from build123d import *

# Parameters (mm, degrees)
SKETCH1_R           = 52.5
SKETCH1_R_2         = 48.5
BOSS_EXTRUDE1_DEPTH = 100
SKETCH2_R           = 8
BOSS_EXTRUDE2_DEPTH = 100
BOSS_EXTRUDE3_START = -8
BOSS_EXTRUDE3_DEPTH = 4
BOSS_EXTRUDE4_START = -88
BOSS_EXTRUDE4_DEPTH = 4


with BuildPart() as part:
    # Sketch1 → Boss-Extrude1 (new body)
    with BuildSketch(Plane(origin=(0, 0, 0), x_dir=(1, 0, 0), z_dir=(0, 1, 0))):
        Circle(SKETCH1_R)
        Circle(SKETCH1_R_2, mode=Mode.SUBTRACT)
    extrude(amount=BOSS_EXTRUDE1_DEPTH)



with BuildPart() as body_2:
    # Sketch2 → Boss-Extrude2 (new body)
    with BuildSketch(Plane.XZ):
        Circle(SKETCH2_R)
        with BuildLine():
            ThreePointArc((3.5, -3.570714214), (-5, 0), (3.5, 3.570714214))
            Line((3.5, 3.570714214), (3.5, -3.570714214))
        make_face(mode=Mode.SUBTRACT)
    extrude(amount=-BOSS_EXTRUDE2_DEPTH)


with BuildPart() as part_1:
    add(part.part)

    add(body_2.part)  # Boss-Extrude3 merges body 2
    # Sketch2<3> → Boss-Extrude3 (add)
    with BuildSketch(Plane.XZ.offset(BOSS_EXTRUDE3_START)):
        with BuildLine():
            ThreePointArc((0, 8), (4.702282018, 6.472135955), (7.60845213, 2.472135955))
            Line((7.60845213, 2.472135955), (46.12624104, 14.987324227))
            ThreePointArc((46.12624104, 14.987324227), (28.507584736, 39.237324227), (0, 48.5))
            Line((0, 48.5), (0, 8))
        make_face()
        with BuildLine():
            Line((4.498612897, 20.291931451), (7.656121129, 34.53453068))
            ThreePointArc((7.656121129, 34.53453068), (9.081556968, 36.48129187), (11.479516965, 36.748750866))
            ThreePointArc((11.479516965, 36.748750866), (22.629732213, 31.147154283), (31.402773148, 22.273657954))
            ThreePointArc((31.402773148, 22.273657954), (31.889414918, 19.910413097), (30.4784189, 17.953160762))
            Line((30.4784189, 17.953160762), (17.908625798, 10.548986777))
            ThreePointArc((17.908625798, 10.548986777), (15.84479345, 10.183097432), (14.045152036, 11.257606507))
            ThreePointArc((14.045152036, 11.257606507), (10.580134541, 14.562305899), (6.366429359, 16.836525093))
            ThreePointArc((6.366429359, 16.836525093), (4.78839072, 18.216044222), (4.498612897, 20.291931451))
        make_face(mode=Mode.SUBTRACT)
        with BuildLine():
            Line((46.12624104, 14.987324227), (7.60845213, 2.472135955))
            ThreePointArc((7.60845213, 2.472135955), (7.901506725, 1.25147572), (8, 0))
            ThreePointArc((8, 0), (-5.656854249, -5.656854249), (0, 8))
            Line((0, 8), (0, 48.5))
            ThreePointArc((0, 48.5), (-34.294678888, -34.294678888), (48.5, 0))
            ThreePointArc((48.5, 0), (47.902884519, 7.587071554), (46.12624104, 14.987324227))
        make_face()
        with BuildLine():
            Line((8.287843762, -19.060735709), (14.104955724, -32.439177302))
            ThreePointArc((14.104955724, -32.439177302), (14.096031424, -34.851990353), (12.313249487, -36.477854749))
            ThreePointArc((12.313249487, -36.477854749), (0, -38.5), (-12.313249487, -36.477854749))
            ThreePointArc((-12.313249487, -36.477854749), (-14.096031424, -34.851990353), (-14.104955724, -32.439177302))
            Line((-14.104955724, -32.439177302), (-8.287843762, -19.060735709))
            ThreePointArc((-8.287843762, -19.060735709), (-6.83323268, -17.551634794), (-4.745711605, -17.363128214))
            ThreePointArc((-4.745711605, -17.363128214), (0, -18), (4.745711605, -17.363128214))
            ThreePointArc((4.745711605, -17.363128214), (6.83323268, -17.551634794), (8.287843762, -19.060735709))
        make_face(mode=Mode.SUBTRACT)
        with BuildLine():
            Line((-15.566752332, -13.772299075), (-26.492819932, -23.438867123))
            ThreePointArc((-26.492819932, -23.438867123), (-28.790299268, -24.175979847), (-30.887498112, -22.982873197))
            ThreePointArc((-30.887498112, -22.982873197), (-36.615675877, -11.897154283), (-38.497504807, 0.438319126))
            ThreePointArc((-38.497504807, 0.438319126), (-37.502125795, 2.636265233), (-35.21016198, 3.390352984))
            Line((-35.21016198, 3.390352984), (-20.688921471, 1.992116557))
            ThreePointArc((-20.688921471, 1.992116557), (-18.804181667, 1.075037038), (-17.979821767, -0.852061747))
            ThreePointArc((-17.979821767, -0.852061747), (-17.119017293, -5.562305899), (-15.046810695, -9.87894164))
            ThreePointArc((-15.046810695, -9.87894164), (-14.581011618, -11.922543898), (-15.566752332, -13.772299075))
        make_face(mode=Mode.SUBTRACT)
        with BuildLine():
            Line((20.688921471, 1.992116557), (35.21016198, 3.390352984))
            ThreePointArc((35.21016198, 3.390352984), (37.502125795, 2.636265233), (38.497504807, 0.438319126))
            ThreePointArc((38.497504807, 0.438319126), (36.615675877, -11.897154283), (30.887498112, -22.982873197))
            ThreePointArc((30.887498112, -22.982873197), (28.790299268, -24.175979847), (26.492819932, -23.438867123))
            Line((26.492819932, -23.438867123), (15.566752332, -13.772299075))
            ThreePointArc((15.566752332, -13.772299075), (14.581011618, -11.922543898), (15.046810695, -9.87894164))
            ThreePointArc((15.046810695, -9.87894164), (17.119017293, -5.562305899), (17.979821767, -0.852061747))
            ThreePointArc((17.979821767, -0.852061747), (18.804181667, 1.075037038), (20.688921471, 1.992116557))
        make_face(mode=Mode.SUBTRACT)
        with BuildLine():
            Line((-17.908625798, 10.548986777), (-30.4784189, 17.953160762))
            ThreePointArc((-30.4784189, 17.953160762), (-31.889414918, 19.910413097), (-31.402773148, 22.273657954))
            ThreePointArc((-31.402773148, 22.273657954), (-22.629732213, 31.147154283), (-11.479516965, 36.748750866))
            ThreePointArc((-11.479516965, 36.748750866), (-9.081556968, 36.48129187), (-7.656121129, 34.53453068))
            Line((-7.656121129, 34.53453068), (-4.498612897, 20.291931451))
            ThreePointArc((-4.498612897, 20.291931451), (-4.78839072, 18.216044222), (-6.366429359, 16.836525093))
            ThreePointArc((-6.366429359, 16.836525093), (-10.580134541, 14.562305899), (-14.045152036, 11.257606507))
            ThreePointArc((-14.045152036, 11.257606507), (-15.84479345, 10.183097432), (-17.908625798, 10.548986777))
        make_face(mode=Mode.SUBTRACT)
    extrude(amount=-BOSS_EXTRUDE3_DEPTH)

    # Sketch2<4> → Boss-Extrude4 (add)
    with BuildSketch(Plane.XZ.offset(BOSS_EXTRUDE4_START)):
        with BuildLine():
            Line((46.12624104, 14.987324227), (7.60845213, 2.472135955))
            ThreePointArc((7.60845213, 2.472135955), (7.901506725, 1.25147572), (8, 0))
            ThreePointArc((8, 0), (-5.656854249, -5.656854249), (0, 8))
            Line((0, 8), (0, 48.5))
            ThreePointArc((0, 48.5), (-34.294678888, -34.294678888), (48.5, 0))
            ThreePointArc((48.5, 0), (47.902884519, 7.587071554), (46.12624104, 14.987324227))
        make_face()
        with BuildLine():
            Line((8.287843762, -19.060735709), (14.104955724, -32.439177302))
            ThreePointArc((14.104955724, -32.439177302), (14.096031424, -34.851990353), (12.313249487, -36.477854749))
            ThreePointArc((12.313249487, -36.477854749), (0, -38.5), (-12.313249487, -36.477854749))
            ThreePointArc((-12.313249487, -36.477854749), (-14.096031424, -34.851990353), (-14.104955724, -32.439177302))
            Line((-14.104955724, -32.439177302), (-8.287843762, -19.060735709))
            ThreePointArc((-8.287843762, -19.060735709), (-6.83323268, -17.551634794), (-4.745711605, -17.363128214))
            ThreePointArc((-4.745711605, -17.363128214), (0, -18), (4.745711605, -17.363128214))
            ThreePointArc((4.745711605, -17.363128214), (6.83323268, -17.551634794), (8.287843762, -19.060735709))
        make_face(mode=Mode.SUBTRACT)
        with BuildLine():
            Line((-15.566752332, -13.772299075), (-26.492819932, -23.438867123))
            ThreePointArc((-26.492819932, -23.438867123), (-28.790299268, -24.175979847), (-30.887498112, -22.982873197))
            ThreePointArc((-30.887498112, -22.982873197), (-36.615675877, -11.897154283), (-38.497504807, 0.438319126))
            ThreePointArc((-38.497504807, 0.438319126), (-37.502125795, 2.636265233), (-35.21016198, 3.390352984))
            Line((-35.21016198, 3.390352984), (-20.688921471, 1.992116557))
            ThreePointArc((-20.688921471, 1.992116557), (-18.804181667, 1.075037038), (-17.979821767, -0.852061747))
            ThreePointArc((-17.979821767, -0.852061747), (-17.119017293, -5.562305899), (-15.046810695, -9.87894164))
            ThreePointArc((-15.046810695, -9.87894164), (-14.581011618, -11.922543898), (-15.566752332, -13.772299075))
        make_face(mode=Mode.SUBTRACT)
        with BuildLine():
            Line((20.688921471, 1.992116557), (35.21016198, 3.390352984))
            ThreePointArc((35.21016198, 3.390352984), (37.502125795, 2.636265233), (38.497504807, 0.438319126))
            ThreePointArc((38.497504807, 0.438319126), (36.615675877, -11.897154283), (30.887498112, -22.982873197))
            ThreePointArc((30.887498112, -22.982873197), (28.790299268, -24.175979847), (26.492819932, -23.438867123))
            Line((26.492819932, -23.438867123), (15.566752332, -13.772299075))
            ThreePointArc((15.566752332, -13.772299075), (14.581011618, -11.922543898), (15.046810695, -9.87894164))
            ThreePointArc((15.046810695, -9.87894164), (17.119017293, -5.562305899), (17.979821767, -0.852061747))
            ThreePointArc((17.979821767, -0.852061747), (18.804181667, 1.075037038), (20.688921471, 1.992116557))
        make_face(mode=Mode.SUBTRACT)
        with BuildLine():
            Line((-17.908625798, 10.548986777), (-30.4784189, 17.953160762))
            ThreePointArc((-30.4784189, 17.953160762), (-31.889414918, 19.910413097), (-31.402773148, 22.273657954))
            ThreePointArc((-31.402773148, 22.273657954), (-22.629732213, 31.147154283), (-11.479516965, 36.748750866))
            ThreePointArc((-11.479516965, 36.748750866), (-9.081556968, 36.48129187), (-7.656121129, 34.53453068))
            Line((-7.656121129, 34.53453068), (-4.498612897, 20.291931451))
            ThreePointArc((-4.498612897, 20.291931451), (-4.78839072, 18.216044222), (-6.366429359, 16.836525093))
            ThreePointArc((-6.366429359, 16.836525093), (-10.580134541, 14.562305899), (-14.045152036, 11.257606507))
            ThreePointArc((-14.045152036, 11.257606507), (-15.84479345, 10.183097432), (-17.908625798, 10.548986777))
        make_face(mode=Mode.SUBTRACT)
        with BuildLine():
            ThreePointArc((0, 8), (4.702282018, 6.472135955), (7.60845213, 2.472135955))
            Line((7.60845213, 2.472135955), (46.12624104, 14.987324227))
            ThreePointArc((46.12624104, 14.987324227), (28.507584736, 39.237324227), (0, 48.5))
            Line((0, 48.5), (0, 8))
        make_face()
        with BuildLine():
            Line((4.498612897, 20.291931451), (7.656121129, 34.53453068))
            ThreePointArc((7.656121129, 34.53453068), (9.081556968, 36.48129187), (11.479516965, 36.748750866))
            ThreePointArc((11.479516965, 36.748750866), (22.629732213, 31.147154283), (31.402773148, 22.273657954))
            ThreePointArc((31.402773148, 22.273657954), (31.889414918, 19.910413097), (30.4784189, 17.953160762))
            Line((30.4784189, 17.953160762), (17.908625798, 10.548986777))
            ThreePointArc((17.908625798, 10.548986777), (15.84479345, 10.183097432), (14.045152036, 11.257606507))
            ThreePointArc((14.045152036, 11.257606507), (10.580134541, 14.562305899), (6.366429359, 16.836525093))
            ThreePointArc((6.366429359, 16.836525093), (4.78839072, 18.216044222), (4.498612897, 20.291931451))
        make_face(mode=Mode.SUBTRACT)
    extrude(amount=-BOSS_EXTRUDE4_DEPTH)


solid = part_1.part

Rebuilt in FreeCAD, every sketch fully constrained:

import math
import FreeCAD as App
import Part
import Sketcher
from FreeCAD import Vector
Q = App.Units.Quantity

doc = App.newDocument("Part")
params = doc.addObject("Spreadsheet::Sheet", "Params")
for row, (alias, value) in enumerate([
    ("sketch1_diameter", "105 mm"),
    ("sketch1_diameter2", "97 mm"),
    ("pad1_length", "100 mm"),
    ("sketch2_diameter", "16 mm"),
    ("sketch2_radius", "5 mm"),
    ("pad2_length", "100 mm"),
    ("sketch3_radius", "3 mm"),
    ("sketch3_radius2", "18 mm"),
    ("sketch3_radius3", "8 mm"),
    ("sketch3_radius4", "48.5 mm"),
    ("sketch3_radius5", "38.5 mm"),
    ("pad3_length", "4 mm"),
    ("sketch4_radius", "3 mm"),
    ("sketch4_radius2", "18 mm"),
    ("sketch4_radius3", "8 mm"),
    ("sketch4_radius4", "48.5 mm"),
    ("sketch4_radius5", "38.5 mm"),
    ("pad4_length", "4 mm"),
], start=1):
    params.set(f"A{row}", alias)
    params.set(f"B{row}", "=" + value)
    params.setAlias(f"B{row}", alias)

body = doc.addObject("PartDesign::Body", "Body")

sketch1 = doc.addObject("Sketcher::SketchObject", "Sketch")
body.addObject(sketch1)
sketch1.AttachmentSupport = (doc.XZ_Plane, [""])
sketch1.MapMode = "FlatFace"
sketch1.addGeometry([
    Part.Circle(Vector(0, 0, 0), Vector(0, 0, 1), 52.5),
    Part.Circle(Vector(0, 0, 0), Vector(0, 0, 1), 48.5),
], False)
sketch1.addConstraint([
    Sketcher.Constraint("Coincident", 0, 3, -1, 1),
    Sketcher.Constraint("Coincident", 1, 3, -1, 1),
    Sketcher.Constraint("Diameter", 0, 105.0),
    Sketcher.Constraint("Diameter", 1, 97.0),
])
sketch1.setExpression("Constraints[2]", "Params.sketch1_diameter")
sketch1.setExpression("Constraints[3]", "Params.sketch1_diameter2")
pad1 = doc.addObject("PartDesign::Pad", "Pad")
body.addObject(pad1)
pad1.Profile = sketch1
pad1.setExpression("Length", "Params.pad1_length")
pad1.Reversed = True
body2 = doc.addObject("PartDesign::Body", "Body001")

sketch2 = doc.addObject("Sketcher::SketchObject", "Sketch001")
body2.addObject(sketch2)
sketch2.AttachmentSupport = (doc.getObject("XZ_Plane001"), [""])
sketch2.MapMode = "FlatFace"
sketch2.addGeometry([
    Part.Circle(Vector(0, 0, 0), Vector(0, 0, 1), 8),
    Part.LineSegment(Vector(3.5, 3.570714, 0), Vector(3.5, -3.570714, 0)),
    Part.ArcOfCircle(Part.Circle(Vector(0, 0, 0), Vector(0, 0, 1), 5), math.radians(45.572996), math.radians(314.427004)),
], False)
sketch2.addConstraint([
    Sketcher.Constraint("Coincident", 1, 1, 2, 1),
    Sketcher.Constraint("Coincident", 2, 2, 1, 2),
    Sketcher.Constraint("Vertical", 1),
    Sketcher.Constraint("Coincident", 0, 3, -1, 1),
    Sketcher.Constraint("Coincident", 2, 3, -1, 1),
    Sketcher.Constraint("Diameter", 0, 16.0),
    Sketcher.Constraint("Radius", 2, 5.0),
    Sketcher.Constraint("DistanceX", -1, 1, 1, 1, 3.5),
])
sketch2.setExpression("Constraints[5]", "Params.sketch2_diameter")
sketch2.setExpression("Constraints[6]", "Params.sketch2_radius")
pad2 = doc.addObject("PartDesign::Pad", "Pad001")
body2.addObject(pad2)
pad2.Profile = sketch2
pad2.setExpression("Length", "Params.pad2_length")
pad2.Reversed = True
body.AllowCompound = True
doc.recompute()

boolean = doc.addObject("PartDesign::Boolean", "Boolean")
body.addObject(boolean)
boolean.Type = "Fuse"
boolean.addObjects([body2])

sketch3 = doc.addObject("Sketcher::SketchObject", "Sketch002")
body.addObject(sketch3)
sketch3.AttachmentSupport = (doc.XZ_Plane, [""])
sketch3.MapMode = "FlatFace"
sketch3.AttachmentOffset = App.Placement(Vector(0, 0, -8), App.Rotation())
sketch3.addGeometry([
    Part.ArcOfCircle(Part.Circle(Vector(0, 0, 0), Vector(0, 0, 1), 48.5), math.radians(18), math.radians(90)),
    Part.ArcOfCircle(Part.Circle(Vector(0, 0, 0), Vector(0, 0, 1), 48.5), math.radians(90), math.radians(360)),
    Part.ArcOfCircle(Part.Circle(Vector(0, 0, 0), Vector(0, 0, 1), 48.5), math.radians(0), math.radians(18)),
    Part.ArcOfCircle(Part.Circle(Vector(-17.554612, -11.525432, 0), Vector(0, 0, 1), 3), math.radians(-48.5), math.radians(33.286789)),
    Part.LineSegment(Vector(-15.566752, -13.772299, 0), Vector(-26.49282, -23.438867, 0)),
    Part.ArcOfCircle(Part.Circle(Vector(-28.48068, -21.192, 0), Vector(0, 0, 1), 3), math.radians(-143.347679), math.radians(-48.5)),
    Part.ArcOfCircle(Part.Circle(Vector(0, 0, 0), Vector(0, 0, 1), 38.5), math.radians(179.347678), math.radians(216.652322)),
    Part.ArcOfCircle(Part.Circle(Vector(-35.497699, 0.404164, 0), Vector(0, 0, 1), 3), math.radians(84.5), math.radians(179.347678)),
    Part.LineSegment(Vector(-35.210162, 3.390353, 0), Vector(-20.688921, 1.992117, 0)),
    Part.ArcOfCircle(Part.Circle(Vector(-20.976459, -0.994072, 0), Vector(0, 0, 1), 3), math.radians(2.713211), math.radians(84.5)),
    Part.ArcOfCircle(Part.Circle(Vector(0, 0, 0), Vector(0, 0, 1), 18), math.radians(-177.286789), math.radians(-146.713211)),
    Part.ArcOfCircle(Part.Circle(Vector(5.536664, -20.256983, 0), Vector(0, 0, 1), 3), math.radians(23.5), math.radians(105.286789)),
    Part.LineSegment(Vector(8.287844, -19.060736, 0), Vector(14.104956, -32.439177, 0)),
    Part.ArcOfCircle(Part.Circle(Vector(11.353776, -33.635425, 0), Vector(0, 0, 1), 3), math.radians(-71.347678), math.radians(23.5)),
    Part.ArcOfCircle(Part.Circle(Vector(0, 0, 0), Vector(0, 0, 1), 38.5), math.radians(-108.652322), math.radians(-71.347678)),
    Part.ArcOfCircle(Part.Circle(Vector(-11.353776, -33.635425, 0), Vector(0, 0, 1), 3), math.radians(156.5), math.radians(251.347678)),
    Part.LineSegment(Vector(-14.104956, -32.439177, 0), Vector(-8.287844, -19.060736, 0)),
    Part.ArcOfCircle(Part.Circle(Vector(-5.536664, -20.256983, 0), Vector(0, 0, 1), 3), math.radians(74.713211), math.radians(156.5)),
    Part.ArcOfCircle(Part.Circle(Vector(0, 0, 0), Vector(0, 0, 1), 18), math.radians(-105.286789), math.radians(-74.713211)),
    Part.ArcOfCircle(Part.Circle(Vector(20.976459, -0.994072, 0), Vector(0, 0, 1), 3), math.radians(95.5), math.radians(177.286789)),
    Part.LineSegment(Vector(20.688921, 1.992117, 0), Vector(35.210162, 3.390353, 0)),
    Part.ArcOfCircle(Part.Circle(Vector(35.497699, 0.404164, 0), Vector(0, 0, 1), 3), math.radians(0.652322), math.radians(95.5)),
    Part.ArcOfCircle(Part.Circle(Vector(0, 0, 0), Vector(0, 0, 1), 38.5), math.radians(-36.652322), math.radians(0.652322)),
    Part.ArcOfCircle(Part.Circle(Vector(28.48068, -21.192, 0), Vector(0, 0, 1), 3), math.radians(-131.5), math.radians(-36.652321)),
    Part.LineSegment(Vector(26.49282, -23.438867, 0), Vector(15.566752, -13.772299, 0)),
    Part.ArcOfCircle(Part.Circle(Vector(17.554612, -11.525432, 0), Vector(0, 0, 1), 3), math.radians(146.713211), math.radians(228.5)),
    Part.ArcOfCircle(Part.Circle(Vector(0, 0, 0), Vector(0, 0, 1), 18), math.radians(-33.286789), math.radians(-2.713211)),
    Part.ArcOfCircle(Part.Circle(Vector(-16.386011, 13.133874, 0), Vector(0, 0, 1), 3), math.radians(-120.5), math.radians(-38.713211)),
    Part.LineSegment(Vector(-17.908626, 10.548987, 0), Vector(-30.478419, 17.953161, 0)),
    Part.ArcOfCircle(Part.Circle(Vector(-28.955804, 20.538048, 0), Vector(0, 0, 1), 3), math.radians(144.652322), math.radians(239.5)),
    Part.ArcOfCircle(Part.Circle(Vector(0, 0, 0), Vector(0, 0, 1), 38.5), math.radians(107.347678), math.radians(144.652322)),
    Part.ArcOfCircle(Part.Circle(Vector(-10.585009, 33.885212, 0), Vector(0, 0, 1), 3), math.radians(12.5), math.radians(107.347678)),
    Part.LineSegment(Vector(-7.656121, 34.534531, 0), Vector(-4.498613, 20.291931, 0)),
    Part.ArcOfCircle(Part.Circle(Vector(-7.427501, 19.642613, 0), Vector(0, 0, 1), 3), math.radians(-69.286789), math.radians(12.5)),
    Part.ArcOfCircle(Part.Circle(Vector(0, 0, 0), Vector(0, 0, 1), 18), math.radians(110.713211), math.radians(141.286789)),
    Part.ArcOfCircle(Part.Circle(Vector(0, 0, 0), Vector(0, 0, 1), 8), math.radians(18), math.radians(90)),
    Part.ArcOfCircle(Part.Circle(Vector(0, 0, 0), Vector(0, 0, 1), 8), math.radians(0), math.radians(18)),
    Part.ArcOfCircle(Part.Circle(Vector(0, 0, 0), Vector(0, 0, 1), 8), math.radians(90), math.radians(360)),
    Part.ArcOfCircle(Part.Circle(Vector(7.427501, 19.642613, 0), Vector(0, 0, 1), 3), math.radians(167.5), math.radians(249.286789)),
    Part.LineSegment(Vector(4.498613, 20.291931, 0), Vector(7.656121, 34.534531, 0)),
    Part.ArcOfCircle(Part.Circle(Vector(10.585009, 33.885212, 0), Vector(0, 0, 1), 3), math.radians(72.652322), math.radians(167.5)),
    Part.ArcOfCircle(Part.Circle(Vector(0, 0, 0), Vector(0, 0, 1), 38.5), math.radians(35.347678), math.radians(72.652322)),
    Part.ArcOfCircle(Part.Circle(Vector(28.955804, 20.538048, 0), Vector(0, 0, 1), 3), math.radians(-59.5), math.radians(35.347678)),
    Part.LineSegment(Vector(30.478419, 17.953161, 0), Vector(17.908626, 10.548987, 0)),
    Part.ArcOfCircle(Part.Circle(Vector(16.386011, 13.133874, 0), Vector(0, 0, 1), 3), math.radians(-141.286789), math.radians(-59.5)),
    Part.ArcOfCircle(Part.Circle(Vector(0, 0, 0), Vector(0, 0, 1), 18), math.radians(38.713211), math.radians(69.286789)),
], False)
sketch3.addConstraint([
    Sketcher.Constraint("Tangent", 0, 2, 1, 1),
    Sketcher.Constraint("Tangent", 1, 2, 2, 1),
    Sketcher.Constraint("Tangent", 2, 2, 0, 1),
    Sketcher.Constraint("Tangent", 3, 1, 4, 1),
    Sketcher.Constraint("Tangent", 4, 2, 5, 2),
    Sketcher.Constraint("Tangent", 5, 1, 6, 2),
    Sketcher.Constraint("Tangent", 6, 1, 7, 2),
    Sketcher.Constraint("Tangent", 7, 1, 8, 1),
    Sketcher.Constraint("Tangent", 8, 2, 9, 2),
    Sketcher.Constraint("Tangent", 9, 1, 10, 1),
    Sketcher.Constraint("Tangent", 10, 2, 3, 2),
    Sketcher.Constraint("Tangent", 11, 1, 12, 1),
    Sketcher.Constraint("Tangent", 12, 2, 13, 2),
    Sketcher.Constraint("Tangent", 13, 1, 14, 2),
    Sketcher.Constraint("Tangent", 14, 1, 15, 2),
    Sketcher.Constraint("Tangent", 15, 1, 16, 1),
    Sketcher.Constraint("Tangent", 16, 2, 17, 2),
    Sketcher.Constraint("Tangent", 17, 1, 18, 1),
    Sketcher.Constraint("Tangent", 18, 2, 11, 2),
    Sketcher.Constraint("Tangent", 19, 1, 20, 1),
    Sketcher.Constraint("Tangent", 20, 2, 21, 2),
    Sketcher.Constraint("Tangent", 21, 1, 22, 2),
    Sketcher.Constraint("Tangent", 22, 1, 23, 2),
    Sketcher.Constraint("Tangent", 23, 1, 24, 1),
    Sketcher.Constraint("Tangent", 24, 2, 25, 2),
    Sketcher.Constraint("Tangent", 25, 1, 26, 1),
    Sketcher.Constraint("Tangent", 26, 2, 19, 2),
    Sketcher.Constraint("Tangent", 27, 1, 28, 1),
    Sketcher.Constraint("Tangent", 28, 2, 29, 2),
    Sketcher.Constraint("Tangent", 29, 1, 30, 2),
    Sketcher.Constraint("Tangent", 30, 1, 31, 2),
    Sketcher.Constraint("Tangent", 31, 1, 32, 1),
    Sketcher.Constraint("Tangent", 32, 2, 33, 2),
    Sketcher.Constraint("Tangent", 33, 1, 34, 1),
    Sketcher.Constraint("Tangent", 34, 2, 27, 2),
    Sketcher.Constraint("Tangent", 35, 1, 36, 2),
    Sketcher.Constraint("Tangent", 36, 1, 37, 2),
    Sketcher.Constraint("Tangent", 37, 1, 35, 2),
    Sketcher.Constraint("Tangent", 38, 1, 39, 1),
    Sketcher.Constraint("Tangent", 39, 2, 40, 2),
    Sketcher.Constraint("Tangent", 40, 1, 41, 2),
    Sketcher.Constraint("Tangent", 41, 1, 42, 2),
    Sketcher.Constraint("Tangent", 42, 1, 43, 1),
    Sketcher.Constraint("Tangent", 43, 2, 44, 2),
    Sketcher.Constraint("Tangent", 44, 1, 45, 1),
    Sketcher.Constraint("Tangent", 45, 2, 38, 2),
    Sketcher.Constraint("Coincident", 0, 3, -1, 1),
    Sketcher.Constraint("Coincident", 6, 3, -1, 1),
    Sketcher.Constraint("Coincident", 10, 3, -1, 1),
    Sketcher.Constraint("Coincident", 14, 3, -1, 1),
    Sketcher.Constraint("Coincident", 18, 3, -1, 1),
    Sketcher.Constraint("Coincident", 22, 3, -1, 1),
    Sketcher.Constraint("Coincident", 26, 3, -1, 1),
    Sketcher.Constraint("Coincident", 30, 3, -1, 1),
    Sketcher.Constraint("Coincident", 34, 3, -1, 1),
    Sketcher.Constraint("Coincident", 35, 3, -1, 1),
    Sketcher.Constraint("Coincident", 41, 3, -1, 1),
    Sketcher.Constraint("Coincident", 45, 3, -1, 1),
    Sketcher.Constraint("Equal", 3, 5),
    Sketcher.Constraint("Equal", 5, 7),
    Sketcher.Constraint("Equal", 7, 9),
    Sketcher.Constraint("Equal", 9, 11),
    Sketcher.Constraint("Equal", 11, 13),
    Sketcher.Constraint("Equal", 6, 14),
    Sketcher.Constraint("Equal", 13, 15),
    Sketcher.Constraint("Equal", 15, 17),
    Sketcher.Constraint("Equal", 10, 18),
    Sketcher.Constraint("Equal", 17, 19),
    Sketcher.Constraint("Equal", 19, 21),
    Sketcher.Constraint("Equal", 14, 22),
    Sketcher.Constraint("Equal", 21, 23),
    Sketcher.Constraint("Equal", 23, 25),
    Sketcher.Constraint("Equal", 18, 26),
    Sketcher.Constraint("Equal", 25, 27),
    Sketcher.Constraint("Equal", 27, 29),
    Sketcher.Constraint("Equal", 22, 30),
    Sketcher.Constraint("Equal", 29, 31),
    Sketcher.Constraint("Equal", 31, 33),
    Sketcher.Constraint("Equal", 26, 34),
    Sketcher.Constraint("Equal", 33, 38),
    Sketcher.Constraint("Equal", 38, 40),
    Sketcher.Constraint("Equal", 30, 41),
    Sketcher.Constraint("Equal", 40, 42),
    Sketcher.Constraint("Equal", 42, 44),
    Sketcher.Constraint("Equal", 34, 45),
    Sketcher.Constraint("Symmetric", 12, 2, 15, 1, -2),
    Sketcher.Constraint("Symmetric", 8, 2, 19, 1, -2),
    Sketcher.Constraint("Symmetric", 4, 2, 23, 1, -2),
    Sketcher.Constraint("Symmetric", 32, 2, 38, 1, -2),
    Sketcher.Constraint("Symmetric", 28, 2, 42, 1, -2),
    Sketcher.Constraint("PointOnObject", 0, 2, -2),
    Sketcher.Constraint("PointOnObject", 1, 2, -1),
    Sketcher.Constraint("PointOnObject", 36, 1, -1),
    Sketcher.Constraint("PointOnObject", 37, 1, -2),
    Sketcher.Constraint("Equal", 4, 8),
    Sketcher.Constraint("Equal", 8, 12),
    Sketcher.Constraint("Equal", 24, 28),
    Sketcher.Constraint("Equal", 28, 32),
    Sketcher.Constraint("Radius", 3, 3.0),
    Sketcher.Constraint("Radius", 10, 18.0),
    Sketcher.Constraint("Radius", 35, 8.0),
    Sketcher.Constraint("Radius", 0, 48.5),
    Sketcher.Constraint("Radius", 6, 38.5),
    Sketcher.Constraint("Angle", 4, Q("-138.5 deg")),
    Sketcher.Constraint("Angle", 8, Q("-5.5 deg")),
    Sketcher.Constraint("Angle", 12, Q("-66.5 deg")),
    Sketcher.Constraint("Angle", 28, Q("149.5 deg")),
    Sketcher.Constraint("Angle", 32, Q("-77.5 deg")),
    Sketcher.Constraint("DistanceY", 5, 3, -1, 1, 21.192),
    Sketcher.Constraint("DistanceX", -1, 1, 2, 2, 46.126241),
    Sketcher.Constraint("DistanceX", -1, 1, 35, 1, 7.608452),
])
sketch3.setExpression("Constraints[98]", "Params.sketch3_radius")
sketch3.setExpression("Constraints[99]", "Params.sketch3_radius2")
sketch3.setExpression("Constraints[100]", "Params.sketch3_radius3")
sketch3.setExpression("Constraints[101]", "Params.sketch3_radius4")
sketch3.setExpression("Constraints[102]", "Params.sketch3_radius5")
pad3 = doc.addObject("PartDesign::Pad", "Pad002")
body.addObject(pad3)
pad3.Profile = sketch3
pad3.setExpression("Length", "Params.pad3_length")
pad3.Reversed = True

sketch4 = doc.addObject("Sketcher::SketchObject", "Sketch003")
body.addObject(sketch4)
sketch4.AttachmentSupport = (doc.XZ_Plane, [""])
sketch4.MapMode = "FlatFace"
sketch4.AttachmentOffset = App.Placement(Vector(0, 0, -88), App.Rotation())
sketch4.addGeometry([
    Part.ArcOfCircle(Part.Circle(Vector(0, 0, 0), Vector(0, 0, 1), 48.5), math.radians(0), math.radians(18)),
    Part.ArcOfCircle(Part.Circle(Vector(0, 0, 0), Vector(0, 0, 1), 48.5), math.radians(18), math.radians(90)),
    Part.ArcOfCircle(Part.Circle(Vector(0, 0, 0), Vector(0, 0, 1), 48.5), math.radians(90), math.radians(360)),
    Part.ArcOfCircle(Part.Circle(Vector(-17.554612, -11.525432, 0), Vector(0, 0, 1), 3), math.radians(-48.5), math.radians(33.286789)),
    Part.LineSegment(Vector(-15.566752, -13.772299, 0), Vector(-26.49282, -23.438867, 0)),
    Part.ArcOfCircle(Part.Circle(Vector(-28.48068, -21.192, 0), Vector(0, 0, 1), 3), math.radians(-143.347679), math.radians(-48.5)),
    Part.ArcOfCircle(Part.Circle(Vector(0, 0, 0), Vector(0, 0, 1), 38.5), math.radians(179.347678), math.radians(216.652322)),
    Part.ArcOfCircle(Part.Circle(Vector(-35.497699, 0.404164, 0), Vector(0, 0, 1), 3), math.radians(84.5), math.radians(179.347678)),
    Part.LineSegment(Vector(-35.210162, 3.390353, 0), Vector(-20.688921, 1.992117, 0)),
    Part.ArcOfCircle(Part.Circle(Vector(-20.976459, -0.994072, 0), Vector(0, 0, 1), 3), math.radians(2.713211), math.radians(84.5)),
    Part.ArcOfCircle(Part.Circle(Vector(0, 0, 0), Vector(0, 0, 1), 18), math.radians(-177.286789), math.radians(-146.713211)),
    Part.ArcOfCircle(Part.Circle(Vector(5.536664, -20.256983, 0), Vector(0, 0, 1), 3), math.radians(23.5), math.radians(105.286789)),
    Part.LineSegment(Vector(8.287844, -19.060736, 0), Vector(14.104956, -32.439177, 0)),
    Part.ArcOfCircle(Part.Circle(Vector(11.353776, -33.635425, 0), Vector(0, 0, 1), 3), math.radians(-71.347678), math.radians(23.5)),
    Part.ArcOfCircle(Part.Circle(Vector(0, 0, 0), Vector(0, 0, 1), 38.5), math.radians(-108.652322), math.radians(-71.347678)),
    Part.ArcOfCircle(Part.Circle(Vector(-11.353776, -33.635425, 0), Vector(0, 0, 1), 3), math.radians(156.5), math.radians(251.347678)),
    Part.LineSegment(Vector(-14.104956, -32.439177, 0), Vector(-8.287844, -19.060736, 0)),
    Part.ArcOfCircle(Part.Circle(Vector(-5.536664, -20.256983, 0), Vector(0, 0, 1), 3), math.radians(74.713211), math.radians(156.5)),
    Part.ArcOfCircle(Part.Circle(Vector(0, 0, 0), Vector(0, 0, 1), 18), math.radians(-105.286789), math.radians(-74.713211)),
    Part.ArcOfCircle(Part.Circle(Vector(20.976459, -0.994072, 0), Vector(0, 0, 1), 3), math.radians(95.5), math.radians(177.286789)),
    Part.LineSegment(Vector(20.688921, 1.992117, 0), Vector(35.210162, 3.390353, 0)),
    Part.ArcOfCircle(Part.Circle(Vector(35.497699, 0.404164, 0), Vector(0, 0, 1), 3), math.radians(0.652322), math.radians(95.5)),
    Part.ArcOfCircle(Part.Circle(Vector(0, 0, 0), Vector(0, 0, 1), 38.5), math.radians(-36.652322), math.radians(0.652322)),
    Part.ArcOfCircle(Part.Circle(Vector(28.48068, -21.192, 0), Vector(0, 0, 1), 3), math.radians(-131.5), math.radians(-36.652321)),
    Part.LineSegment(Vector(26.49282, -23.438867, 0), Vector(15.566752, -13.772299, 0)),
    Part.ArcOfCircle(Part.Circle(Vector(17.554612, -11.525432, 0), Vector(0, 0, 1), 3), math.radians(146.713211), math.radians(228.5)),
    Part.ArcOfCircle(Part.Circle(Vector(0, 0, 0), Vector(0, 0, 1), 18), math.radians(-33.286789), math.radians(-2.713211)),
    Part.ArcOfCircle(Part.Circle(Vector(-16.386011, 13.133874, 0), Vector(0, 0, 1), 3), math.radians(-120.5), math.radians(-38.713211)),
    Part.LineSegment(Vector(-17.908626, 10.548987, 0), Vector(-30.478419, 17.953161, 0)),
    Part.ArcOfCircle(Part.Circle(Vector(-28.955804, 20.538048, 0), Vector(0, 0, 1), 3), math.radians(144.652322), math.radians(239.5)),
    Part.ArcOfCircle(Part.Circle(Vector(0, 0, 0), Vector(0, 0, 1), 38.5), math.radians(107.347678), math.radians(144.652322)),
    Part.ArcOfCircle(Part.Circle(Vector(-10.585009, 33.885212, 0), Vector(0, 0, 1), 3), math.radians(12.5), math.radians(107.347678)),
    Part.LineSegment(Vector(-7.656121, 34.534531, 0), Vector(-4.498613, 20.291931, 0)),
    Part.ArcOfCircle(Part.Circle(Vector(-7.427501, 19.642613, 0), Vector(0, 0, 1), 3), math.radians(-69.286789), math.radians(12.5)),
    Part.ArcOfCircle(Part.Circle(Vector(0, 0, 0), Vector(0, 0, 1), 18), math.radians(110.713211), math.radians(141.286789)),
    Part.ArcOfCircle(Part.Circle(Vector(0, 0, 0), Vector(0, 0, 1), 8), math.radians(0), math.radians(18)),
    Part.ArcOfCircle(Part.Circle(Vector(0, 0, 0), Vector(0, 0, 1), 8), math.radians(90), math.radians(360)),
    Part.ArcOfCircle(Part.Circle(Vector(0, 0, 0), Vector(0, 0, 1), 8), math.radians(18), math.radians(90)),
    Part.ArcOfCircle(Part.Circle(Vector(7.427501, 19.642613, 0), Vector(0, 0, 1), 3), math.radians(167.5), math.radians(249.286789)),
    Part.LineSegment(Vector(4.498613, 20.291931, 0), Vector(7.656121, 34.534531, 0)),
    Part.ArcOfCircle(Part.Circle(Vector(10.585009, 33.885212, 0), Vector(0, 0, 1), 3), math.radians(72.652322), math.radians(167.5)),
    Part.ArcOfCircle(Part.Circle(Vector(0, 0, 0), Vector(0, 0, 1), 38.5), math.radians(35.347678), math.radians(72.652322)),
    Part.ArcOfCircle(Part.Circle(Vector(28.955804, 20.538048, 0), Vector(0, 0, 1), 3), math.radians(-59.5), math.radians(35.347678)),
    Part.LineSegment(Vector(30.478419, 17.953161, 0), Vector(17.908626, 10.548987, 0)),
    Part.ArcOfCircle(Part.Circle(Vector(16.386011, 13.133874, 0), Vector(0, 0, 1), 3), math.radians(-141.286789), math.radians(-59.5)),
    Part.ArcOfCircle(Part.Circle(Vector(0, 0, 0), Vector(0, 0, 1), 18), math.radians(38.713211), math.radians(69.286789)),
], False)
sketch4.addConstraint([
    Sketcher.Constraint("Tangent", 0, 2, 1, 1),
    Sketcher.Constraint("Tangent", 1, 2, 2, 1),
    Sketcher.Constraint("Tangent", 2, 2, 0, 1),
    Sketcher.Constraint("Tangent", 3, 1, 4, 1),
    Sketcher.Constraint("Tangent", 4, 2, 5, 2),
    Sketcher.Constraint("Tangent", 5, 1, 6, 2),
    Sketcher.Constraint("Tangent", 6, 1, 7, 2),
    Sketcher.Constraint("Tangent", 7, 1, 8, 1),
    Sketcher.Constraint("Tangent", 8, 2, 9, 2),
    Sketcher.Constraint("Tangent", 9, 1, 10, 1),
    Sketcher.Constraint("Tangent", 10, 2, 3, 2),
    Sketcher.Constraint("Tangent", 11, 1, 12, 1),
    Sketcher.Constraint("Tangent", 12, 2, 13, 2),
    Sketcher.Constraint("Tangent", 13, 1, 14, 2),
    Sketcher.Constraint("Tangent", 14, 1, 15, 2),
    Sketcher.Constraint("Tangent", 15, 1, 16, 1),
    Sketcher.Constraint("Tangent", 16, 2, 17, 2),
    Sketcher.Constraint("Tangent", 17, 1, 18, 1),
    Sketcher.Constraint("Tangent", 18, 2, 11, 2),
    Sketcher.Constraint("Tangent", 19, 1, 20, 1),
    Sketcher.Constraint("Tangent", 20, 2, 21, 2),
    Sketcher.Constraint("Tangent", 21, 1, 22, 2),
    Sketcher.Constraint("Tangent", 22, 1, 23, 2),
    Sketcher.Constraint("Tangent", 23, 1, 24, 1),
    Sketcher.Constraint("Tangent", 24, 2, 25, 2),
    Sketcher.Constraint("Tangent", 25, 1, 26, 1),
    Sketcher.Constraint("Tangent", 26, 2, 19, 2),
    Sketcher.Constraint("Tangent", 27, 1, 28, 1),
    Sketcher.Constraint("Tangent", 28, 2, 29, 2),
    Sketcher.Constraint("Tangent", 29, 1, 30, 2),
    Sketcher.Constraint("Tangent", 30, 1, 31, 2),
    Sketcher.Constraint("Tangent", 31, 1, 32, 1),
    Sketcher.Constraint("Tangent", 32, 2, 33, 2),
    Sketcher.Constraint("Tangent", 33, 1, 34, 1),
    Sketcher.Constraint("Tangent", 34, 2, 27, 2),
    Sketcher.Constraint("Tangent", 35, 1, 36, 2),
    Sketcher.Constraint("Tangent", 36, 1, 37, 2),
    Sketcher.Constraint("Tangent", 37, 1, 35, 2),
    Sketcher.Constraint("Tangent", 38, 1, 39, 1),
    Sketcher.Constraint("Tangent", 39, 2, 40, 2),
    Sketcher.Constraint("Tangent", 40, 1, 41, 2),
    Sketcher.Constraint("Tangent", 41, 1, 42, 2),
    Sketcher.Constraint("Tangent", 42, 1, 43, 1),
    Sketcher.Constraint("Tangent", 43, 2, 44, 2),
    Sketcher.Constraint("Tangent", 44, 1, 45, 1),
    Sketcher.Constraint("Tangent", 45, 2, 38, 2),
    Sketcher.Constraint("Coincident", 0, 3, -1, 1),
    Sketcher.Constraint("Coincident", 6, 3, -1, 1),
    Sketcher.Constraint("Coincident", 10, 3, -1, 1),
    Sketcher.Constraint("Coincident", 14, 3, -1, 1),
    Sketcher.Constraint("Coincident", 18, 3, -1, 1),
    Sketcher.Constraint("Coincident", 22, 3, -1, 1),
    Sketcher.Constraint("Coincident", 26, 3, -1, 1),
    Sketcher.Constraint("Coincident", 30, 3, -1, 1),
    Sketcher.Constraint("Coincident", 34, 3, -1, 1),
    Sketcher.Constraint("Coincident", 35, 3, -1, 1),
    Sketcher.Constraint("Coincident", 41, 3, -1, 1),
    Sketcher.Constraint("Coincident", 45, 3, -1, 1),
    Sketcher.Constraint("Equal", 3, 5),
    Sketcher.Constraint("Equal", 5, 7),
    Sketcher.Constraint("Equal", 7, 9),
    Sketcher.Constraint("Equal", 9, 11),
    Sketcher.Constraint("Equal", 11, 13),
    Sketcher.Constraint("Equal", 6, 14),
    Sketcher.Constraint("Equal", 13, 15),
    Sketcher.Constraint("Equal", 15, 17),
    Sketcher.Constraint("Equal", 10, 18),
    Sketcher.Constraint("Equal", 17, 19),
    Sketcher.Constraint("Equal", 19, 21),
    Sketcher.Constraint("Equal", 14, 22),
    Sketcher.Constraint("Equal", 21, 23),
    Sketcher.Constraint("Equal", 23, 25),
    Sketcher.Constraint("Equal", 18, 26),
    Sketcher.Constraint("Equal", 25, 27),
    Sketcher.Constraint("Equal", 27, 29),
    Sketcher.Constraint("Equal", 22, 30),
    Sketcher.Constraint("Equal", 29, 31),
    Sketcher.Constraint("Equal", 31, 33),
    Sketcher.Constraint("Equal", 26, 34),
    Sketcher.Constraint("Equal", 33, 38),
    Sketcher.Constraint("Equal", 38, 40),
    Sketcher.Constraint("Equal", 30, 41),
    Sketcher.Constraint("Equal", 40, 42),
    Sketcher.Constraint("Equal", 42, 44),
    Sketcher.Constraint("Equal", 34, 45),
    Sketcher.Constraint("Symmetric", 12, 2, 15, 1, -2),
    Sketcher.Constraint("Symmetric", 8, 2, 19, 1, -2),
    Sketcher.Constraint("Symmetric", 4, 2, 23, 1, -2),
    Sketcher.Constraint("Symmetric", 32, 2, 38, 1, -2),
    Sketcher.Constraint("Symmetric", 28, 2, 42, 1, -2),
    Sketcher.Constraint("PointOnObject", 1, 2, -2),
    Sketcher.Constraint("PointOnObject", 2, 2, -1),
    Sketcher.Constraint("PointOnObject", 35, 1, -1),
    Sketcher.Constraint("PointOnObject", 36, 1, -2),
    Sketcher.Constraint("Equal", 4, 8),
    Sketcher.Constraint("Equal", 8, 12),
    Sketcher.Constraint("Equal", 24, 28),
    Sketcher.Constraint("Equal", 28, 32),
    Sketcher.Constraint("Radius", 3, 3.0),
    Sketcher.Constraint("Radius", 10, 18.0),
    Sketcher.Constraint("Radius", 35, 8.0),
    Sketcher.Constraint("Radius", 0, 48.5),
    Sketcher.Constraint("Radius", 6, 38.5),
    Sketcher.Constraint("Angle", 4, Q("-138.5 deg")),
    Sketcher.Constraint("Angle", 8, Q("-5.5 deg")),
    Sketcher.Constraint("Angle", 12, Q("-66.5 deg")),
    Sketcher.Constraint("Angle", 28, Q("149.5 deg")),
    Sketcher.Constraint("Angle", 32, Q("-77.5 deg")),
    Sketcher.Constraint("DistanceY", 5, 3, -1, 1, 21.192),
    Sketcher.Constraint("DistanceX", -1, 1, 0, 2, 46.126241),
    Sketcher.Constraint("DistanceX", -1, 1, 37, 1, 7.608452),
])
sketch4.setExpression("Constraints[98]", "Params.sketch4_radius")
sketch4.setExpression("Constraints[99]", "Params.sketch4_radius2")
sketch4.setExpression("Constraints[100]", "Params.sketch4_radius3")
sketch4.setExpression("Constraints[101]", "Params.sketch4_radius4")
sketch4.setExpression("Constraints[102]", "Params.sketch4_radius5")
pad4 = doc.addObject("PartDesign::Pad", "Pad003")
body.addObject(pad4)
pad4.Profile = sketch4
pad4.setExpression("Length", "Params.pad4_length")
pad4.Reversed = True

doc.recompute()
